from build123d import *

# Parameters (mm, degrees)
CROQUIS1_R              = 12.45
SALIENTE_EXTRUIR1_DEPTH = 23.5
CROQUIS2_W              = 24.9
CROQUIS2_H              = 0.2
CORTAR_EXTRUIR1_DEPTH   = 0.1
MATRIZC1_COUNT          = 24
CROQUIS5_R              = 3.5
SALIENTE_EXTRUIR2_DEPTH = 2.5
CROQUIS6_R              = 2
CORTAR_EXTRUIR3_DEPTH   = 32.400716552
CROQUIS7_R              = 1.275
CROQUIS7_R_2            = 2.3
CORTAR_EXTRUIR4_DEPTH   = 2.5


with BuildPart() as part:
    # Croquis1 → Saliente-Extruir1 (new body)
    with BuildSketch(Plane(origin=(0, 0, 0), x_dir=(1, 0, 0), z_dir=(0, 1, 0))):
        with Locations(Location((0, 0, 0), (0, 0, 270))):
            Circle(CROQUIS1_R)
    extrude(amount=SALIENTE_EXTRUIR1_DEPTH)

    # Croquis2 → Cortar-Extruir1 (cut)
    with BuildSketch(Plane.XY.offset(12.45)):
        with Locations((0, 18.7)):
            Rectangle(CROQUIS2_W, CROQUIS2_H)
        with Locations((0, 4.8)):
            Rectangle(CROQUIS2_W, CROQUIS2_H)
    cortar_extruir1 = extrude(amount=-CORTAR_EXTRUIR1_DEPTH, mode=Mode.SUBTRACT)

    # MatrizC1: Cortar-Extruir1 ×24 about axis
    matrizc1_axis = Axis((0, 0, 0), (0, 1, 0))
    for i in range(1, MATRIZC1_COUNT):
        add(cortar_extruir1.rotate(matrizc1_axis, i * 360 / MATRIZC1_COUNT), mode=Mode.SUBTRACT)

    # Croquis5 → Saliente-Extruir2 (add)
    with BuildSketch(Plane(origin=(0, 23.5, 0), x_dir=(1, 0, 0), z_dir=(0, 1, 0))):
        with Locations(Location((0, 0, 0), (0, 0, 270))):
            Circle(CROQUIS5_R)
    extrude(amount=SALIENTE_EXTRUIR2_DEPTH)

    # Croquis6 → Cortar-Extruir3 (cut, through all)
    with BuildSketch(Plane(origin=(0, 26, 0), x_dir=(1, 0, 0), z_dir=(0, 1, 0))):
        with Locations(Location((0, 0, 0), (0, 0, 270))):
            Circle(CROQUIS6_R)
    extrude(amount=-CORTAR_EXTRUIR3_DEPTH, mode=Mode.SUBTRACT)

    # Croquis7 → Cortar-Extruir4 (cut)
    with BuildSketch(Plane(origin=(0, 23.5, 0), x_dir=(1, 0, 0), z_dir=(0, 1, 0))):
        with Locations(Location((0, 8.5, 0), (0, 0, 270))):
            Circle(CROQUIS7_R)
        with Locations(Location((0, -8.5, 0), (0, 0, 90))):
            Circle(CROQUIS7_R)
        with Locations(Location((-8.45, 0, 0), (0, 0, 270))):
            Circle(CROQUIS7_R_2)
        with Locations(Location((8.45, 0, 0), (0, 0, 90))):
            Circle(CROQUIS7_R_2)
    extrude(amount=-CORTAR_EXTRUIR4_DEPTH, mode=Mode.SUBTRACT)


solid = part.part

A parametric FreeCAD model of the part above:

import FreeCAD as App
import Part
import Sketcher
from FreeCAD import Vector
Q = App.Units.Quantity

doc = App.newDocument("Part")
body = doc.addObject("PartDesign::Body", "Body")

sketch1 = body.newObject("Sketcher::SketchObject", "Sketch")
sketch1.AttachmentSupport = (doc.getObject("XZ_Plane"), [""])
sketch1.MapMode = "FlatFace"
sketch1.addGeometry(Part.Circle(Vector(0, 0, 0), Vector(0, 0, 1), 12.45), False)
sketch1.addConstraint(Sketcher.Constraint("Coincident", 0, 3, -1, 1))
sketch1.addConstraint(Sketcher.Constraint("Diameter", 0, Q("24.9 mm")))
pad1 = body.newObject("PartDesign::Pad", "Pad")
pad1.Profile = sketch1
pad1.Length = 23.5
pad1.Reversed = True

sketch2 = body.newObject("Sketcher::SketchObject", "Sketch001")
sketch2.AttachmentSupport = (doc.getObject("XY_Plane"), [""])
sketch2.MapMode = "FlatFace"
sketch2.AttachmentOffset = App.Placement(Vector(0, 0, 12.45), App.Rotation())
sketch2.addGeometry(Part.LineSegment(Vector(-12.45, 18.8, 0), Vector(-12.45, 18.6, 0)), False)
sketch2.addGeometry(Part.LineSegment(Vector(-12.45, 18.6, 0), Vector(12.45, 18.6, 0)), False)
sketch2.addGeometry(Part.LineSegment(Vector(12.45, 18.6, 0), Vector(12.45, 18.8, 0)), False)
sketch2.addGeometry(Part.LineSegment(Vector(12.45, 18.8, 0), Vector(-12.45, 18.8, 0)), False)
sketch2.addGeometry(Part.LineSegment(Vector(-12.45, 4.9, 0), Vector(-12.45, 4.7, 0)), False)
sketch2.addGeometry(Part.LineSegment(Vector(-12.45, 4.7, 0), Vector(12.45, 4.7, 0)), False)
sketch2.addGeometry(Part.LineSegment(Vector(12.45, 4.7, 0), Vector(12.45, 4.9, 0)), False)
sketch2.addGeometry(Part.LineSegment(Vector(12.45, 4.9, 0), Vector(-12.45, 4.9, 0)), False)
sketch2.addConstraint(Sketcher.Constraint("Coincident", 0, 2, 1, 1))
sketch2.addConstraint(Sketcher.Constraint("Coincident", 1, 2, 2, 1))
sketch2.addConstraint(Sketcher.Constraint("Coincident", 2, 2, 3, 1))
sketch2.addConstraint(Sketcher.Constraint("Coincident", 3, 2, 0, 1))
sketch2.addConstraint(Sketcher.Constraint("Coincident", 4, 2, 5, 1))
sketch2.addConstraint(Sketcher.Constraint("Coincident", 5, 2, 6, 1))
sketch2.addConstraint(Sketcher.Constraint("Coincident", 6, 2, 7, 1))
sketch2.addConstraint(Sketcher.Constraint("Coincident", 7, 2, 4, 1))
sketch2.addConstraint(Sketcher.Constraint("Vertical", 0))
sketch2.addConstraint(Sketcher.Constraint("Horizontal", 1))
sketch2.addConstraint(Sketcher.Constraint("Vertical", 2))
sketch2.addConstraint(Sketcher.Constraint("Horizontal", 3))
sketch2.addConstraint(Sketcher.Constraint("Vertical", 4))
sketch2.addConstraint(Sketcher.Constraint("Horizontal", 5))
sketch2.addConstraint(Sketcher.Constraint("Vertical", 6))
sketch2.addConstraint(Sketcher.Constraint("Horizontal", 7))
sketch2.addConstraint(Sketcher.Constraint("Vertical", 3, 2, 4, 2))
sketch2.addConstraint(Sketcher.Constraint("Vertical", 2, 2, 5, 2))
sketch2.addConstraint(Sketcher.Constraint("Equal", 2, 4))
sketch2.addConstraint(Sketcher.Constraint("DistanceX", 1, 1, 1, 2, Q("24.9 mm")))
sketch2.addConstraint(Sketcher.Constraint("DistanceY", 0, 2, 0, 1, Q("0.2 mm")))
sketch2.addConstraint(Sketcher.Constraint("DistanceY", -1, 1, 0, 2, Q("18.6 mm")))
sketch2.addConstraint(Sketcher.Constraint("DistanceY", -1, 1, 4, 2, Q("4.7 mm")))
sketch2.addConstraint(Sketcher.Constraint("DistanceX", 0, 2, -1, 1, Q("12.45 mm")))
pocket1 = body.newObject("PartDesign::Pocket", "Pocket")
pocket1.Profile = sketch2
pocket1.Length = 0.1
doc.recompute()

polarpattern = body.newObject("PartDesign::PolarPattern", "PolarPattern")
polarpattern.Originals = [pocket1]
polarpattern.Axis = (doc.getObject("Y_Axis"), [""])
polarpattern.Angle = 360
polarpattern.Occurrences = 24
body.Tip = polarpattern

sketch3 = body.newObject("Sketcher::SketchObject", "Sketch002")
sketch3.AttachmentSupport = (doc.getObject("XZ_Plane"), [""])
sketch3.MapMode = "FlatFace"
sketch3.AttachmentOffset = App.Placement(Vector(0, 0, -23.5), App.Rotation())
sketch3.addGeometry(Part.Circle(Vector(0, 0, 0), Vector(0, 0, 1), 3.5), False)
sketch3.addConstraint(Sketcher.Constraint("Coincident", 0, 3, -1, 1))
sketch3.addConstraint(Sketcher.Constraint("Diameter", 0, Q("7 mm")))
pad2 = body.newObject("PartDesign::Pad", "Pad001")
pad2.Profile = sketch3
pad2.Length = 2.5
pad2.Reversed = True

sketch4 = body.newObject("Sketcher::SketchObject", "Sketch003")
sketch4.AttachmentSupport = (doc.getObject("XZ_Plane"), [""])
sketch4.MapMode = "FlatFace"
sketch4.AttachmentOffset = App.Placement(Vector(0, 0, -26), App.Rotation())
sketch4.addGeometry(Part.Circle(Vector(0, 0, 0), Vector(0, 0, 1), 2), False)
sketch4.addConstraint(Sketcher.Constraint("Coincident", 0, 3, -1, 1))
sketch4.addConstraint(Sketcher.Constraint("Diameter", 0, Q("4 mm")))
pocket2 = body.newObject("PartDesign::Pocket", "Pocket001")
pocket2.Profile = sketch4
pocket2.Type = "ThroughAll"
pocket2.Reversed = True

sketch5 = body.newObject("Sketcher::SketchObject", "Sketch004")
sketch5.AttachmentSupport = (doc.getObject("XZ_Plane"), [""])
sketch5.MapMode = "FlatFace"
sketch5.AttachmentOffset = App.Placement(Vector(0, 0, -23.5), App.Rotation())
sketch5.addGeometry(Part.Circle(Vector(0, -8.5, 0), Vector(0, 0, 1), 1.275), False)
sketch5.addGeometry(Part.Circle(Vector(0, 8.5, 0), Vector(0, 0, 1), 1.275), False)
sketch5.addGeometry(Part.Circle(Vector(-8.45, 0, 0), Vector(0, 0, 1), 2.3), False)
sketch5.addGeometry(Part.Circle(Vector(8.45, 0, 0), Vector(0, 0, 1), 2.3), False)
sketch5.addConstraint(Sketcher.Constraint("Equal", 0, 1))
sketch5.addConstraint(Sketcher.Constraint("Equal", 2, 3))
sketch5.addConstraint(Sketcher.Constraint("Symmetric", 0, 3, 1, 3, -1, 1))
sketch5.addConstraint(Sketcher.Constraint("Symmetric", 2, 3, 3, 3, -1, 1))
sketch5.addConstraint(Sketcher.Constraint("PointOnObject", 0, 3, -2))
sketch5.addConstraint(Sketcher.Constraint("PointOnObject", 2, 3, -1))
sketch5.addConstraint(Sketcher.Constraint("Diameter", 2, Q("4.6 mm")))
sketch5.addConstraint(Sketcher.Constraint("Diameter", 0, Q("2.55 mm")))
sketch5.addConstraint(Sketcher.Constraint("DistanceY", 0, 3, 1, 3, Q("17 mm")))
sketch5.addConstraint(Sketcher.Constraint("DistanceX", 2, 3, 3, 3, Q("16.9 mm")))
pocket3 = body.newObject("PartDesign::Pocket", "Pocket002")
pocket3.Profile = sketch5
pocket3.Length = 2.5
pocket3.Reversed = True

doc.recompute()
